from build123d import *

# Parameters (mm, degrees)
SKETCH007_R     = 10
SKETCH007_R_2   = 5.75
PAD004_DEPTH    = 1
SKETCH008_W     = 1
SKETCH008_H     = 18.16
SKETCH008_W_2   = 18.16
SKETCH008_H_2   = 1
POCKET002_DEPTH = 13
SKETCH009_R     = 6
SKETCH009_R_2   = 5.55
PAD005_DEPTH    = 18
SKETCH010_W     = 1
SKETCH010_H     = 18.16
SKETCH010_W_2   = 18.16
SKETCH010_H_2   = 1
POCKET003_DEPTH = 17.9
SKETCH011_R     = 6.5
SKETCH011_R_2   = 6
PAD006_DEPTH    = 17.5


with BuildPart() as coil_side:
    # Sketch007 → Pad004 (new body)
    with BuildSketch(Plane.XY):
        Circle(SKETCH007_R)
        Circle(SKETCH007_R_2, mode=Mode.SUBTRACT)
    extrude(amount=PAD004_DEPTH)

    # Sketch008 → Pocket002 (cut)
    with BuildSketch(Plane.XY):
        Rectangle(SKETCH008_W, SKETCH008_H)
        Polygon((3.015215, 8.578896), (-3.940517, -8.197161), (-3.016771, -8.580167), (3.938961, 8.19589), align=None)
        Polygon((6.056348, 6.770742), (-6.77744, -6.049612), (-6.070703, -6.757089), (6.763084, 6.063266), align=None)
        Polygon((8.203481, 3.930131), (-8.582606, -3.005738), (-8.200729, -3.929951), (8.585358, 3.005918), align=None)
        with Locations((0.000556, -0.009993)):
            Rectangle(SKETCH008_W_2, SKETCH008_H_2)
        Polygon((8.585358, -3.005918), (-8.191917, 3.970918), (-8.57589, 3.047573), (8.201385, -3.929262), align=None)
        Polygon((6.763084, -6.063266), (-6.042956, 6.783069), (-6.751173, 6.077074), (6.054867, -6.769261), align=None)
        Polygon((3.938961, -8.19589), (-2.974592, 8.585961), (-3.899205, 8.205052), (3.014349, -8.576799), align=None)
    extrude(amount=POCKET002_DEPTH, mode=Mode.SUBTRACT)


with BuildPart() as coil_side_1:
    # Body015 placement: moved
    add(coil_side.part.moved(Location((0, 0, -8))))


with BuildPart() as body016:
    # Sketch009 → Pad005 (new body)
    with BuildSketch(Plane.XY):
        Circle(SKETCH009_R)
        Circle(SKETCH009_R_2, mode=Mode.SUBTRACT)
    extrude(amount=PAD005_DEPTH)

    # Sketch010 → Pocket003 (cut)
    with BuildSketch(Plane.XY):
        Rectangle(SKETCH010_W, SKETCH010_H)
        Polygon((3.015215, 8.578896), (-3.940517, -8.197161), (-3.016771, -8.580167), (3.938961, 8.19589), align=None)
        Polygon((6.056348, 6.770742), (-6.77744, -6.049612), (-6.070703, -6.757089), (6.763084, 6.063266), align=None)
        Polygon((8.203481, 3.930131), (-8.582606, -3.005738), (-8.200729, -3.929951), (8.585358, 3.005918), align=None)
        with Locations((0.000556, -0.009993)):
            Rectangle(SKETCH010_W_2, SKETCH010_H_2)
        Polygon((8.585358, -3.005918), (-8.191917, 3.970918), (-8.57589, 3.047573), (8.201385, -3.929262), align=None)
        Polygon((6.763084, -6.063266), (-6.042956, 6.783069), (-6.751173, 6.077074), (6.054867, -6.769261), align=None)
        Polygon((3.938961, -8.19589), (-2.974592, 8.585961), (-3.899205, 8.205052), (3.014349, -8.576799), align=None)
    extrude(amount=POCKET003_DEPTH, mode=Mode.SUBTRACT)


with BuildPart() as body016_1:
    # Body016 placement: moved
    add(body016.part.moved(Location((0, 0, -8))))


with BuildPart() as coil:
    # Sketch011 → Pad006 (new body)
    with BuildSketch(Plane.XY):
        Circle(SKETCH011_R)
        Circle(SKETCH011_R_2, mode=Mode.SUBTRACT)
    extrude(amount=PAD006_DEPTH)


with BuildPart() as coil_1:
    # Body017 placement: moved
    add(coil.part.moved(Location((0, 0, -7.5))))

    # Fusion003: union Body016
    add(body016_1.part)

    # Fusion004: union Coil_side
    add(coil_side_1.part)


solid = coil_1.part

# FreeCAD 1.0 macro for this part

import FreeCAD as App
import Part
import Sketcher

V = App.Vector
Q = App.Units.Quantity

doc = App.newDocument("Part")
body = doc.addObject("PartDesign::Body", "Body")

# Sketch on XY plane
sketch1 = body.newObject("Sketcher::SketchObject", "Sketch")
sketch1.AttachmentSupport = (doc.getObject("XY_Plane"), [""])
sketch1.MapMode = "FlatFace"
sketch1.addGeometry([
    Part.Circle(V(0, 0, 0), V(0, 0, 1), 10),
    Part.Circle(V(0, 0, 0), V(0, 0, 1), 6),
], False)
sketch1.addConstraint([
    Sketcher.Constraint("Coincident", 0, 3, -1, 1),
    Sketcher.Constraint("Coincident", 1, 3, -1, 1),
    Sketcher.Constraint("Diameter", 0, Q("20 mm")),
    Sketcher.Constraint("Diameter", 1, Q("11.5 mm")),
])
pad1 = body.newObject("PartDesign::Pad", "Pad")
pad1.Profile = sketch1
pad1.Length = 1

# Sketch on XY plane
sketch2 = body.newObject("Sketcher::SketchObject", "Sketch001")
sketch2.AttachmentSupport = (doc.getObject("XY_Plane"), [""])
sketch2.MapMode = "FlatFace"
sketch2.addGeometry([
    Part.LineSegment(V(-0.5, -2.5, 0), V(-0.5, -9.1, 0)),  # 0
    Part.LineSegment(V(-0.5, -9.1, 0), V(0.5, -9.1, 0)),  # 1
    Part.LineSegment(V(0.5, -9.1, 0), V(0.5, -2.5, 0)),  # 2
    Part.LineSegment(V(0.5, -2.5, 0), V(3, -8.6, 0)),  # 3
    Part.LineSegment(V(3, -8.6, 0), V(3.9, -8.2, 0)),  # 4
    Part.LineSegment(V(3.9, -8.2, 0), V(1.4, -2.1, 0)),  # 5
    Part.LineSegment(V(1.4, -2.1, 0), V(6.1, -6.8, 0)),  # 6
    Part.LineSegment(V(6.1, -6.8, 0), V(6.8, -6.1, 0)),  # 7
    Part.LineSegment(V(6.8, -6.1, 0), V(2.1, -1.4, 0)),  # 8
    Part.LineSegment(V(2.1, -1.4, 0), V(8.2, -3.9, 0)),  # 9
    Part.LineSegment(V(8.2, -3.9, 0), V(8.6, -3, 0)),  # 10
    Part.LineSegment(V(8.6, -3, 0), V(2.6, -0.5, 0)),  # 11
    Part.LineSegment(V(2.6, -0.5, 0), V(9.1, -0.5, 0)),  # 12
    Part.LineSegment(V(9.1, -0.5, 0), V(9.1, 0.5, 0)),  # 13
    Part.LineSegment(V(9.1, 0.5, 0), V(2.5, 0.5, 0)),  # 14
    Part.LineSegment(V(2.5, 0.5, 0), V(8.6, 3, 0)),  # 15
    Part.LineSegment(V(8.6, 3, 0), V(8.2, 3.9, 0)),  # 16
    Part.LineSegment(V(8.2, 3.9, 0), V(2.1, 1.4, 0)),  # 17
    Part.LineSegment(V(2.1, 1.4, 0), V(6.8, 6.1, 0)),  # 18
    Part.LineSegment(V(6.8, 6.1, 0), V(6.1, 6.8, 0)),  # 19
    Part.LineSegment(V(6.1, 6.8, 0), V(1.4, 2.2, 0)),  # 20
    Part.LineSegment(V(1.4, 2.2, 0), V(3.9, 8.2, 0)),  # 21
    Part.LineSegment(V(3.9, 8.2, 0), V(3, 8.6, 0)),  # 22
    Part.LineSegment(V(3, 8.6, 0), V(0.5, 2.5, 0)),  # 23
    Part.LineSegment(V(0.5, 2.5, 0), V(0.5, 9.1, 0)),  # 24
    Part.LineSegment(V(0.5, 9.1, 0), V(-0.5, 9.1, 0)),  # 25
    Part.LineSegment(V(-0.5, 9.1, 0), V(-0.5, 2.6, 0)),  # 26
    Part.LineSegment(V(-0.5, 2.6, 0), V(-3, 8.6, 0)),  # 27
    Part.LineSegment(V(-3, 8.6, 0), V(-3.9, 8.2, 0)),  # 28
    Part.LineSegment(V(-3.9, 8.2, 0), V(-1.4, 2.1, 0)),  # 29
    Part.LineSegment(V(-1.4, 2.1, 0), V(-6, 6.8, 0)),  # 30
    Part.LineSegment(V(-6, 6.8, 0), V(-6.8, 6.1, 0)),  # 31
    Part.LineSegment(V(-6.8, 6.1, 0), V(-2.1, 1.5, 0)),  # 32
    Part.LineSegment(V(-2.1, 1.5, 0), V(-8.2, 4, 0)),  # 33
    Part.LineSegment(V(-8.2, 4, 0), V(-8.6, 3, 0)),  # 34
    Part.LineSegment(V(-8.6, 3, 0), V(-2.4, 0.5, 0)),  # 35
    Part.LineSegment(V(-2.4, 0.5, 0), V(-9.1, 0.5, 0)),  # 36
    Part.LineSegment(V(-9.1, 0.5, 0), V(-9.1, -0.5, 0)),  # 37
    Part.LineSegment(V(-9.1, -0.5, 0), V(-2.5, -0.5, 0)),  # 38
    Part.LineSegment(V(-2.5, -0.5, 0), V(-8.6, -3, 0)),  # 39
    Part.LineSegment(V(-8.6, -3, 0), V(-8.2, -3.9, 0)),  # 40
    Part.LineSegment(V(-8.2, -3.9, 0), V(-2.2, -1.4, 0)),  # 41
    Part.LineSegment(V(-2.2, -1.4, 0), V(-6.8, -6, 0)),  # 42
    Part.LineSegment(V(-6.8, -6, 0), V(-6.1, -6.8, 0)),  # 43
    Part.LineSegment(V(-6.1, -6.8, 0), V(-1.4, -2.1, 0)),  # 44
    Part.LineSegment(V(-1.4, -2.1, 0), V(-3.9, -8.2, 0)),  # 45
    Part.LineSegment(V(-3.9, -8.2, 0), V(-3, -8.6, 0)),  # 46
    Part.LineSegment(V(-3, -8.6, 0), V(-0.5, -2.5, 0)),  # 47
], False)
sketch2.addConstraint([
    Sketcher.Constraint("Coincident", 0, 2, 1, 1),
    Sketcher.Constraint("Coincident", 1, 2, 2, 1),
    Sketcher.Constraint("Coincident", 2, 2, 3, 1),
    Sketcher.Constraint("Coincident", 3, 2, 4, 1),
    Sketcher.Constraint("Coincident", 4, 2, 5, 1),
    Sketcher.Constraint("Coincident", 5, 2, 6, 1),
    Sketcher.Constraint("Coincident", 6, 2, 7, 1),
    Sketcher.Constraint("Coincident", 7, 2, 8, 1),
    Sketcher.Constraint("Coincident", 8, 2, 9, 1),
    Sketcher.Constraint("Coincident", 9, 2, 10, 1),
    Sketcher.Constraint("Coincident", 10, 2, 11, 1),
    Sketcher.Constraint("Coincident", 11, 2, 12, 1),
    Sketcher.Constraint("Coincident", 12, 2, 13, 1),
    Sketcher.Constraint("Coincident", 13, 2, 14, 1),
    Sketcher.Constraint("Coincident", 14, 2, 15, 1),
    Sketcher.Constraint("Coincident", 15, 2, 16, 1),
    Sketcher.Constraint("Coincident", 16, 2, 17, 1),
    Sketcher.Constraint("Coincident", 17, 2, 18, 1),
    Sketcher.Constraint("Coincident", 18, 2, 19, 1),
    Sketcher.Constraint("Coincident", 19, 2, 20, 1),
    Sketcher.Constraint("Coincident", 20, 2, 21, 1),
    Sketcher.Constraint("Coincident", 21, 2, 22, 1),
    Sketcher.Constraint("Coincident", 22, 2, 23, 1),
    Sketcher.Constraint("Coincident", 23, 2, 24, 1),
    Sketcher.Constraint("Coincident", 24, 2, 25, 1),
    Sketcher.Constraint("Coincident", 25, 2, 26, 1),
    Sketcher.Constraint("Coincident", 26, 2, 27, 1),
    Sketcher.Constraint("Coincident", 27, 2, 28, 1),
    Sketcher.Constraint("Coincident", 28, 2, 29, 1),
    Sketcher.Constraint("Coincident", 29, 2, 30, 1),
    Sketcher.Constraint("Coincident", 30, 2, 31, 1),
    Sketcher.Constraint("Coincident", 31, 2, 32, 1),
    Sketcher.Constraint("Coincident", 32, 2, 33, 1),
    Sketcher.Constraint("Coincident", 33, 2, 34, 1),
    Sketcher.Constraint("Coincident", 34, 2, 35, 1),
    Sketcher.Constraint("Coincident", 35, 2, 36, 1),
    Sketcher.Constraint("Coincident", 36, 2, 37, 1),
    Sketcher.Constraint("Coincident", 37, 2, 38, 1),
    Sketcher.Constraint("Coincident", 38, 2, 39, 1),
    Sketcher.Constraint("Coincident", 39, 2, 40, 1),
    Sketcher.Constraint("Coincident", 40, 2, 41, 1),
    Sketcher.Constraint("Coincident", 41, 2, 42, 1),
    Sketcher.Constraint("Coincident", 42, 2, 43, 1),
    Sketcher.Constraint("Coincident", 43, 2, 44, 1),
    Sketcher.Constraint("Coincident", 44, 2, 45, 1),
    Sketcher.Constraint("Coincident", 45, 2, 46, 1),
    Sketcher.Constraint("Coincident", 46, 2, 47, 1),
    Sketcher.Constraint("Coincident", 47, 2, 0, 1),
    Sketcher.Constraint("Vertical", 0),
    Sketcher.Constraint("Horizontal", 1),
    Sketcher.Constraint("Vertical", 2),
    Sketcher.Constraint("Horizontal", 12),
    Sketcher.Constraint("Vertical", 13),
    Sketcher.Constraint("Horizontal", 14),
    Sketcher.Constraint("Vertical", 24),
    Sketcher.Constraint("Horizontal", 25),
    Sketcher.Constraint("Vertical", 26),
    Sketcher.Constraint("Horizontal", 36),
    Sketcher.Constraint("Vertical", 37),
    Sketcher.Constraint("Horizontal", 38),
    Sketcher.Constraint("Symmetric", 0, 2, 24, 2, -1, 1),
    Sketcher.Constraint("Symmetric", 10, 2, 15, 2, -1),
    Sketcher.Constraint("Symmetric", 7, 2, 18, 2, -1),
    Sketcher.Constraint("Symmetric", 4, 2, 21, 2, -1),
    Sketcher.Constraint("Perpendicular", 3, 4),
    Sketcher.Constraint("Perpendicular", 4, 5),
    Sketcher.Constraint("Perpendicular", 6, 7),
    Sketcher.Constraint("Perpendicular", 7, 8),
    Sketcher.Constraint("Perpendicular", 9, 10),
    Sketcher.Constraint("Perpendicular", 10, 11),
    Sketcher.Constraint("Perpendicular", 15, 16),
    Sketcher.Constraint("Perpendicular", 16, 17),
    Sketcher.Constraint("Perpendicular", 18, 19),
    Sketcher.Constraint("Perpendicular", 19, 20),
    Sketcher.Constraint("Perpendicular", 21, 22),
    Sketcher.Constraint("Perpendicular", 22, 23),
    Sketcher.Constraint("Parallel", 5, 27),
    Sketcher.Constraint("Perpendicular", 27, 28),
    Sketcher.Constraint("Perpendicular", 28, 29),
    Sketcher.Constraint("Parallel", 8, 30),
    Sketcher.Constraint("Perpendicular", 30, 31),
    Sketcher.Constraint("Perpendicular", 31, 32),
    Sketcher.Constraint("Parallel", 11, 33),
    Sketcher.Constraint("Perpendicular", 33, 34),
    Sketcher.Constraint("Perpendicular", 34, 35),
    Sketcher.Constraint("Parallel", 17, 39),
    Sketcher.Constraint("Perpendicular", 39, 40),
    Sketcher.Constraint("Perpendicular", 40, 41),
    Sketcher.Constraint("Parallel", 20, 42),
    Sketcher.Constraint("Perpendicular", 42, 43),
    Sketcher.Constraint("Perpendicular", 43, 44),
    Sketcher.Constraint("Parallel", 23, 45),
    Sketcher.Constraint("Perpendicular", 45, 46),
    Sketcher.Constraint("Perpendicular", 46, 47),
    Sketcher.Constraint("Horizontal", 14, 2, 35, 2),
    Sketcher.Constraint("Horizontal", 12, 2, 37, 2),
    Sketcher.Constraint("Vertical", 2, 2, 23, 2),
    Sketcher.Constraint("Vertical", 0, 2, 25, 2),
    Sketcher.Constraint("Equal", 25, 13),
    Sketcher.Constraint("Equal", 4, 7),
    Sketcher.Constraint("Equal", 7, 10),
    Sketcher.Constraint("Equal", 10, 16),
    Sketcher.Constraint("Equal", 16, 19),
    Sketcher.Constraint("Equal", 19, 22),
    Sketcher.Constraint("Equal", 22, 28),
    Sketcher.Constraint("Equal", 28, 31),
    Sketcher.Constraint("Equal", 31, 34),
    Sketcher.Constraint("Equal", 34, 40),
    Sketcher.Constraint("Equal", 40, 43),
    Sketcher.Constraint("Equal", 43, 46),
    Sketcher.Constraint("DistanceX", 1, 1, 1, 2, Q("1 mm")),
    Sketcher.Constraint("Distance", 4, Q("1 mm")),
    Sketcher.Constraint("Angle", 3, Q("-67.609999 deg")),
    Sketcher.Constraint("Angle", 6, Q("-45.090001 deg")),
    Sketcher.Constraint("Angle", 9, Q("-22.579999 deg")),
    Sketcher.Constraint("Angle", 15, Q("22.45 deg")),
    Sketcher.Constraint("Angle", 18, Q("44.970001 deg")),
    Sketcher.Constraint("Angle", 21, Q("67.48 deg")),
    Sketcher.Constraint("DistanceY", 0, 2, -1, 1, Q("9.08 mm")),
    Sketcher.Constraint("DistanceY", 6, 2, 9, 2, Q("2.839999 mm")),
    Sketcher.Constraint("DistanceX", 14, 2, 14, 1, Q("6.584168 mm")),
    Sketcher.Constraint("DistanceY", 0, 2, 0, 1, Q("6.569862 mm")),
    Sketcher.Constraint("DistanceY", 2, 1, 2, 2, Q("6.606492 mm")),
    Sketcher.Constraint("DistanceY", 3, 2, -1, 1, Q("8.576799 mm")),
    Sketcher.Constraint("DistanceX", 5, 2, 6, 2, Q("4.6079 mm")),
    Sketcher.Constraint("DistanceX", 7, 2, 9, 2, Q("1.438301 mm")),
    Sketcher.Constraint("DistanceY", 8, 2, 11, 2, Q("0.886601 mm")),
    Sketcher.Constraint("DistanceX", 10, 2, 12, 2, Q("0.495198 mm")),
    Sketcher.Constraint("DistanceY", 32, 2, 29, 2, Q("0.660102 mm")),
    Sketcher.Constraint("DistanceY", 34, 2, 31, 2, Q("3.029501 mm")),
    Sketcher.Constraint("Distance", 33, Q("6.549118 mm")),
    Sketcher.Constraint("Distance", 41, Q("6.541679 mm")),
    Sketcher.Constraint("Distance", 45, Q("6.59353 mm")),
    Sketcher.Constraint("DistanceX", 36, 2, 36, 1, Q("6.653762 mm")),
    Sketcher.Constraint("DistanceX", 38, 1, 38, 2, Q("6.537003 mm")),
    Sketcher.Constraint("DistanceY", 26, 2, 26, 1, Q("6.500825 mm")),
    Sketcher.Constraint("DistanceX", 27, 2, -1, 1, Q("2.974592 mm")),
    Sketcher.Constraint("DistanceX", 29, 2, -1, 1, Q("1.39086 mm")),
    Sketcher.Constraint("DistanceY", 39, 2, -1, 1, Q("3.005738 mm")),
    Sketcher.Constraint("DistanceX", 42, 2, -1, 1, Q("6.77744 mm")),
])
pocket1 = body.newObject("PartDesign::Pocket", "Pocket")
pocket1.Profile = sketch2
pocket1.Length = 13
pocket1.Reversed = True
body2 = doc.addObject("PartDesign::Body", "Body001")
doc.recompute()

body.Placement = App.Placement(V(0, 0, -8), App.Rotation(V(0, 0, 1), 0))
boolean = body2.newObject("PartDesign::Boolean", "Boolean")
boolean.Type = "Fuse"
boolean.addObjects([body])
body3 = doc.addObject("PartDesign::Body", "Body002")

# Sketch on XY plane
sketch3 = body3.newObject("Sketcher::SketchObject", "Sketch002")
sketch3.AttachmentSupport = (doc.getObject("XY_Plane002"), [""])
sketch3.MapMode = "FlatFace"
sketch3.addGeometry([
    Part.Circle(V(0, 0, 0), V(0, 0, 1), 6),
    Part.Circle(V(0, 0, 0), V(0, 0, 1), 6),
], False)
sketch3.addConstraint([
    Sketcher.Constraint("Coincident", 0, 3, -1, 1),
    Sketcher.Constraint("Coincident", 1, 3, -1, 1),
    Sketcher.Constraint("Diameter", 0, Q("12 mm")),
    Sketcher.Constraint("Diameter", 1, Q("11.1 mm")),
])
pad2 = body3.newObject("PartDesign::Pad", "Pad001")
pad2.Profile = sketch3
pad2.Length = 18

# Sketch on XY plane
sketch4 = body3.newObject("Sketcher::SketchObject", "Sketch003")
sketch4.AttachmentSupport = (doc.getObject("XY_Plane002"), [""])
sketch4.MapMode = "FlatFace"
sketch4.addGeometry([
    Part.LineSegment(V(-0.5, -2.5, 0), V(-0.5, -9.1, 0)),  # 0
    Part.LineSegment(V(-0.5, -9.1, 0), V(0.5, -9.1, 0)),  # 1
    Part.LineSegment(V(0.5, -9.1, 0), V(0.5, -2.5, 0)),  # 2
    Part.LineSegment(V(0.5, -2.5, 0), V(3, -8.6, 0)),  # 3
    Part.LineSegment(V(3, -8.6, 0), V(3.9, -8.2, 0)),  # 4
    Part.LineSegment(V(3.9, -8.2, 0), V(1.4, -2.1, 0)),  # 5
    Part.LineSegment(V(1.4, -2.1, 0), V(6.1, -6.8, 0)),  # 6
    Part.LineSegment(V(6.1, -6.8, 0), V(6.8, -6.1, 0)),  # 7
    Part.LineSegment(V(6.8, -6.1, 0), V(2.1, -1.4, 0)),  # 8
    Part.LineSegment(V(2.1, -1.4, 0), V(8.2, -3.9, 0)),  # 9
    Part.LineSegment(V(8.2, -3.9, 0), V(8.6, -3, 0)),  # 10
    Part.LineSegment(V(8.6, -3, 0), V(2.6, -0.5, 0)),  # 11
    Part.LineSegment(V(2.6, -0.5, 0), V(9.1, -0.5, 0)),  # 12
    Part.LineSegment(V(9.1, -0.5, 0), V(9.1, 0.5, 0)),  # 13
    Part.LineSegment(V(9.1, 0.5, 0), V(2.5, 0.5, 0)),  # 14
    Part.LineSegment(V(2.5, 0.5, 0), V(8.6, 3, 0)),  # 15
    Part.LineSegment(V(8.6, 3, 0), V(8.2, 3.9, 0)),  # 16
    Part.LineSegment(V(8.2, 3.9, 0), V(2.1, 1.4, 0)),  # 17
    Part.LineSegment(V(2.1, 1.4, 0), V(6.8, 6.1, 0)),  # 18
    Part.LineSegment(V(6.8, 6.1, 0), V(6.1, 6.8, 0)),  # 19
    Part.LineSegment(V(6.1, 6.8, 0), V(1.4, 2.2, 0)),  # 20
    Part.LineSegment(V(1.4, 2.2, 0), V(3.9, 8.2, 0)),  # 21
    Part.LineSegment(V(3.9, 8.2, 0), V(3, 8.6, 0)),  # 22
    Part.LineSegment(V(3, 8.6, 0), V(0.5, 2.5, 0)),  # 23
    Part.LineSegment(V(0.5, 2.5, 0), V(0.5, 9.1, 0)),  # 24
    Part.LineSegment(V(0.5, 9.1, 0), V(-0.5, 9.1, 0)),  # 25
    Part.LineSegment(V(-0.5, 9.1, 0), V(-0.5, 2.6, 0)),  # 26
    Part.LineSegment(V(-0.5, 2.6, 0), V(-3, 8.6, 0)),  # 27
    Part.LineSegment(V(-3, 8.6, 0), V(-3.9, 8.2, 0)),  # 28
    Part.LineSegment(V(-3.9, 8.2, 0), V(-1.4, 2.1, 0)),  # 29
    Part.LineSegment(V(-1.4, 2.1, 0), V(-6, 6.8, 0)),  # 30
    Part.LineSegment(V(-6, 6.8, 0), V(-6.8, 6.1, 0)),  # 31
    Part.LineSegment(V(-6.8, 6.1, 0), V(-2.1, 1.5, 0)),  # 32
    Part.LineSegment(V(-2.1, 1.5, 0), V(-8.2, 4, 0)),  # 33
    Part.LineSegment(V(-8.2, 4, 0), V(-8.6, 3, 0)),  # 34
    Part.LineSegment(V(-8.6, 3, 0), V(-2.4, 0.5, 0)),  # 35
    Part.LineSegment(V(-2.4, 0.5, 0), V(-9.1, 0.5, 0)),  # 36
    Part.LineSegment(V(-9.1, 0.5, 0), V(-9.1, -0.5, 0)),  # 37
    Part.LineSegment(V(-9.1, -0.5, 0), V(-2.5, -0.5, 0)),  # 38
    Part.LineSegment(V(-2.5, -0.5, 0), V(-8.6, -3, 0)),  # 39
    Part.LineSegment(V(-8.6, -3, 0), V(-8.2, -3.9, 0)),  # 40
    Part.LineSegment(V(-8.2, -3.9, 0), V(-2.2, -1.4, 0)),  # 41
    Part.LineSegment(V(-2.2, -1.4, 0), V(-6.8, -6, 0)),  # 42
    Part.LineSegment(V(-6.8, -6, 0), V(-6.1, -6.8, 0)),  # 43
    Part.LineSegment(V(-6.1, -6.8, 0), V(-1.4, -2.1, 0)),  # 44
    Part.LineSegment(V(-1.4, -2.1, 0), V(-3.9, -8.2, 0)),  # 45
    Part.LineSegment(V(-3.9, -8.2, 0), V(-3, -8.6, 0)),  # 46
    Part.LineSegment(V(-3, -8.6, 0), V(-0.5, -2.5, 0)),  # 47
], False)
sketch4.addConstraint([
    Sketcher.Constraint("Coincident", 0, 2, 1, 1),
    Sketcher.Constraint("Coincident", 1, 2, 2, 1),
    Sketcher.Constraint("Coincident", 2, 2, 3, 1),
    Sketcher.Constraint("Coincident", 3, 2, 4, 1),
    Sketcher.Constraint("Coincident", 4, 2, 5, 1),
    Sketcher.Constraint("Coincident", 5, 2, 6, 1),
    Sketcher.Constraint("Coincident", 6, 2, 7, 1),
    Sketcher.Constraint("Coincident", 7, 2, 8, 1),
    Sketcher.Constraint("Coincident", 8, 2, 9, 1),
    Sketcher.Constraint("Coincident", 9, 2, 10, 1),
    Sketcher.Constraint("Coincident", 10, 2, 11, 1),
    Sketcher.Constraint("Coincident", 11, 2, 12, 1),
    Sketcher.Constraint("Coincident", 12, 2, 13, 1),
    Sketcher.Constraint("Coincident", 13, 2, 14, 1),
    Sketcher.Constraint("Coincident", 14, 2, 15, 1),
    Sketcher.Constraint("Coincident", 15, 2, 16, 1),
    Sketcher.Constraint("Coincident", 16, 2, 17, 1),
    Sketcher.Constraint("Coincident", 17, 2, 18, 1),
    Sketcher.Constraint("Coincident", 18, 2, 19, 1),
    Sketcher.Constraint("Coincident", 19, 2, 20, 1),
    Sketcher.Constraint("Coincident", 20, 2, 21, 1),
    Sketcher.Constraint("Coincident", 21, 2, 22, 1),
    Sketcher.Constraint("Coincident", 22, 2, 23, 1),
    Sketcher.Constraint("Coincident", 23, 2, 24, 1),
    Sketcher.Constraint("Coincident", 24, 2, 25, 1),
    Sketcher.Constraint("Coincident", 25, 2, 26, 1),
    Sketcher.Constraint("Coincident", 26, 2, 27, 1),
    Sketcher.Constraint("Coincident", 27, 2, 28, 1),
    Sketcher.Constraint("Coincident", 28, 2, 29, 1),
    Sketcher.Constraint("Coincident", 29, 2, 30, 1),
    Sketcher.Constraint("Coincident", 30, 2, 31, 1),
    Sketcher.Constraint("Coincident", 31, 2, 32, 1),
    Sketcher.Constraint("Coincident", 32, 2, 33, 1),
    Sketcher.Constraint("Coincident", 33, 2, 34, 1),
    Sketcher.Constraint("Coincident", 34, 2, 35, 1),
    Sketcher.Constraint("Coincident", 35, 2, 36, 1),
    Sketcher.Constraint("Coincident", 36, 2, 37, 1),
    Sketcher.Constraint("Coincident", 37, 2, 38, 1),
    Sketcher.Constraint("Coincident", 38, 2, 39, 1),
    Sketcher.Constraint("Coincident", 39, 2, 40, 1),
    Sketcher.Constraint("Coincident", 40, 2, 41, 1),
    Sketcher.Constraint("Coincident", 41, 2, 42, 1),
    Sketcher.Constraint("Coincident", 42, 2, 43, 1),
    Sketcher.Constraint("Coincident", 43, 2, 44, 1),
    Sketcher.Constraint("Coincident", 44, 2, 45, 1),
    Sketcher.Constraint("Coincident", 45, 2, 46, 1),
    Sketcher.Constraint("Coincident", 46, 2, 47, 1),
    Sketcher.Constraint("Coincident", 47, 2, 0, 1),
    Sketcher.Constraint("Vertical", 0),
    Sketcher.Constraint("Horizontal", 1),
    Sketcher.Constraint("Vertical", 2),
    Sketcher.Constraint("Horizontal", 12),
    Sketcher.Constraint("Vertical", 13),
    Sketcher.Constraint("Horizontal", 14),
    Sketcher.Constraint("Vertical", 24),
    Sketcher.Constraint("Horizontal", 25),
    Sketcher.Constraint("Vertical", 26),
    Sketcher.Constraint("Horizontal", 36),
    Sketcher.Constraint("Vertical", 37),
    Sketcher.Constraint("Horizontal", 38),
    Sketcher.Constraint("Symmetric", 0, 2, 24, 2, -1, 1),
    Sketcher.Constraint("Symmetric", 10, 2, 15, 2, -1),
    Sketcher.Constraint("Symmetric", 7, 2, 18, 2, -1),
    Sketcher.Constraint("Symmetric", 4, 2, 21, 2, -1),
    Sketcher.Constraint("Perpendicular", 3, 4),
    Sketcher.Constraint("Perpendicular", 4, 5),
    Sketcher.Constraint("Perpendicular", 6, 7),
    Sketcher.Constraint("Perpendicular", 7, 8),
    Sketcher.Constraint("Perpendicular", 9, 10),
    Sketcher.Constraint("Perpendicular", 10, 11),
    Sketcher.Constraint("Perpendicular", 15, 16),
    Sketcher.Constraint("Perpendicular", 16, 17),
    Sketcher.Constraint("Perpendicular", 18, 19),
    Sketcher.Constraint("Perpendicular", 19, 20),
    Sketcher.Constraint("Perpendicular", 21, 22),
    Sketcher.Constraint("Perpendicular", 22, 23),
    Sketcher.Constraint("Parallel", 5, 27),
    Sketcher.Constraint("Perpendicular", 27, 28),
    Sketcher.Constraint("Perpendicular", 28, 29),
    Sketcher.Constraint("Parallel", 8, 30),
    Sketcher.Constraint("Perpendicular", 30, 31),
    Sketcher.Constraint("Perpendicular", 31, 32),
    Sketcher.Constraint("Parallel", 11, 33),
    Sketcher.Constraint("Perpendicular", 33, 34),
    Sketcher.Constraint("Perpendicular", 34, 35),
    Sketcher.Constraint("Parallel", 17, 39),
    Sketcher.Constraint("Perpendicular", 39, 40),
    Sketcher.Constraint("Perpendicular", 40, 41),
    Sketcher.Constraint("Parallel", 20, 42),
    Sketcher.Constraint("Perpendicular", 42, 43),
    Sketcher.Constraint("Perpendicular", 43, 44),
    Sketcher.Constraint("Parallel", 23, 45),
    Sketcher.Constraint("Perpendicular", 45, 46),
    Sketcher.Constraint("Perpendicular", 46, 47),
    Sketcher.Constraint("Horizontal", 14, 2, 35, 2),
    Sketcher.Constraint("Horizontal", 12, 2, 37, 2),
    Sketcher.Constraint("Vertical", 2, 2, 23, 2),
    Sketcher.Constraint("Vertical", 0, 2, 25, 2),
    Sketcher.Constraint("Equal", 25, 13),
    Sketcher.Constraint("Equal", 4, 7),
    Sketcher.Constraint("Equal", 7, 10),
    Sketcher.Constraint("Equal", 10, 16),
    Sketcher.Constraint("Equal", 16, 19),
    Sketcher.Constraint("Equal", 19, 22),
    Sketcher.Constraint("Equal", 22, 28),
    Sketcher.Constraint("Equal", 28, 31),
    Sketcher.Constraint("Equal", 31, 34),
    Sketcher.Constraint("Equal", 34, 40),
    Sketcher.Constraint("Equal", 40, 43),
    Sketcher.Constraint("Equal", 43, 46),
    Sketcher.Constraint("DistanceX", 1, 1, 1, 2, Q("1 mm")),
    Sketcher.Constraint("Distance", 4, Q("1 mm")),
    Sketcher.Constraint("Angle", 3, Q("-67.609999 deg")),
    Sketcher.Constraint("Angle", 6, Q("-45.090001 deg")),
    Sketcher.Constraint("Angle", 9, Q("-22.579999 deg")),
    Sketcher.Constraint("Angle", 15, Q("22.45 deg")),
    Sketcher.Constraint("Angle", 18, Q("44.970001 deg")),
    Sketcher.Constraint("Angle", 21, Q("67.48 deg")),
    Sketcher.Constraint("DistanceY", 0, 2, -1, 1, Q("9.08 mm")),
    Sketcher.Constraint("DistanceY", 6, 2, 9, 2, Q("2.839999 mm")),
    Sketcher.Constraint("DistanceX", 14, 2, 14, 1, Q("6.584168 mm")),
    Sketcher.Constraint("DistanceY", 0, 2, 0, 1, Q("6.569862 mm")),
    Sketcher.Constraint("DistanceY", 2, 1, 2, 2, Q("6.606492 mm")),
    Sketcher.Constraint("DistanceY", 3, 2, -1, 1, Q("8.576799 mm")),
    Sketcher.Constraint("DistanceX", 5, 2, 6, 2, Q("4.6079 mm")),
    Sketcher.Constraint("DistanceX", 7, 2, 9, 2, Q("1.438301 mm")),
    Sketcher.Constraint("DistanceY", 8, 2, 11, 2, Q("0.886601 mm")),
    Sketcher.Constraint("DistanceX", 10, 2, 12, 2, Q("0.495198 mm")),
    Sketcher.Constraint("DistanceY", 32, 2, 29, 2, Q("0.660102 mm")),
    Sketcher.Constraint("DistanceY", 34, 2, 31, 2, Q("3.029501 mm")),
    Sketcher.Constraint("Distance", 33, Q("6.549118 mm")),
    Sketcher.Constraint("Distance", 41, Q("6.541679 mm")),
    Sketcher.Constraint("Distance", 45, Q("6.59353 mm")),
    Sketcher.Constraint("DistanceX", 36, 2, 36, 1, Q("6.653762 mm")),
    Sketcher.Constraint("DistanceX", 38, 1, 38, 2, Q("6.537003 mm")),
    Sketcher.Constraint("DistanceY", 26, 2, 26, 1, Q("6.500825 mm")),
    Sketcher.Constraint("DistanceX", 27, 2, -1, 1, Q("2.974592 mm")),
    Sketcher.Constraint("DistanceX", 29, 2, -1, 1, Q("1.39086 mm")),
    Sketcher.Constraint("DistanceY", 39, 2, -1, 1, Q("3.005738 mm")),
    Sketcher.Constraint("DistanceX", 42, 2, -1, 1, Q("6.77744 mm")),
])
pocket2 = body3.newObject("PartDesign::Pocket", "Pocket001")
pocket2.Profile = sketch4
pocket2.Length = 17.9
pocket2.Reversed = True
body4 = doc.addObject("PartDesign::Body", "Body003")
doc.recompute()

body3.Placement = App.Placement(V(0, 0, -8), App.Rotation(V(0, 0, 1), 0))
boolean2 = body4.newObject("PartDesign::Boolean", "Boolean001")
boolean2.Type = "Fuse"
boolean2.addObjects([body3])
body5 = doc.addObject("PartDesign::Body", "Body004")

# Sketch on XY plane
sketch5 = body5.newObject("Sketcher::SketchObject", "Sketch004")
sketch5.AttachmentSupport = (doc.getObject("XY_Plane004"), [""])
sketch5.MapMode = "FlatFace"
sketch5.addGeometry([
    Part.Circle(V(0, 0, 0), V(0, 0, 1), 6),
    Part.Circle(V(0, 0, 0), V(0, 0, 1), 6),
], False)
sketch5.addConstraint([
    Sketcher.Constraint("Coincident", 0, 3, -1, 1),
    Sketcher.Constraint("Coincident", 1, 3, -1, 1),
    Sketcher.Constraint("Diameter", 0, Q("13 mm")),
    Sketcher.Constraint("Diameter", 1, Q("12 mm")),
])
pad3 = body5.newObject("PartDesign::Pad", "Pad002")
pad3.Profile = sketch5
pad3.Length = 17.5
body6 = doc.addObject("PartDesign::Body", "Body005")
doc.recompute()

body5.Placement = App.Placement(V(0, 0, -7.5), App.Rotation(V(0, 0, 1), 0))
boolean3 = body6.newObject("PartDesign::Boolean", "Boolean002")
boolean3.Type = "Fuse"
boolean3.addObjects([body5])
doc.recompute()

boolean4 = body6.newObject("PartDesign::Boolean", "Boolean003")
boolean4.Type = "Fuse"
boolean4.addObjects([body4])
doc.recompute()

boolean5 = body6.newObject("PartDesign::Boolean", "Boolean004")
boolean5.Type = "Fuse"
boolean5.addObjects([body2])

doc.recompute()
